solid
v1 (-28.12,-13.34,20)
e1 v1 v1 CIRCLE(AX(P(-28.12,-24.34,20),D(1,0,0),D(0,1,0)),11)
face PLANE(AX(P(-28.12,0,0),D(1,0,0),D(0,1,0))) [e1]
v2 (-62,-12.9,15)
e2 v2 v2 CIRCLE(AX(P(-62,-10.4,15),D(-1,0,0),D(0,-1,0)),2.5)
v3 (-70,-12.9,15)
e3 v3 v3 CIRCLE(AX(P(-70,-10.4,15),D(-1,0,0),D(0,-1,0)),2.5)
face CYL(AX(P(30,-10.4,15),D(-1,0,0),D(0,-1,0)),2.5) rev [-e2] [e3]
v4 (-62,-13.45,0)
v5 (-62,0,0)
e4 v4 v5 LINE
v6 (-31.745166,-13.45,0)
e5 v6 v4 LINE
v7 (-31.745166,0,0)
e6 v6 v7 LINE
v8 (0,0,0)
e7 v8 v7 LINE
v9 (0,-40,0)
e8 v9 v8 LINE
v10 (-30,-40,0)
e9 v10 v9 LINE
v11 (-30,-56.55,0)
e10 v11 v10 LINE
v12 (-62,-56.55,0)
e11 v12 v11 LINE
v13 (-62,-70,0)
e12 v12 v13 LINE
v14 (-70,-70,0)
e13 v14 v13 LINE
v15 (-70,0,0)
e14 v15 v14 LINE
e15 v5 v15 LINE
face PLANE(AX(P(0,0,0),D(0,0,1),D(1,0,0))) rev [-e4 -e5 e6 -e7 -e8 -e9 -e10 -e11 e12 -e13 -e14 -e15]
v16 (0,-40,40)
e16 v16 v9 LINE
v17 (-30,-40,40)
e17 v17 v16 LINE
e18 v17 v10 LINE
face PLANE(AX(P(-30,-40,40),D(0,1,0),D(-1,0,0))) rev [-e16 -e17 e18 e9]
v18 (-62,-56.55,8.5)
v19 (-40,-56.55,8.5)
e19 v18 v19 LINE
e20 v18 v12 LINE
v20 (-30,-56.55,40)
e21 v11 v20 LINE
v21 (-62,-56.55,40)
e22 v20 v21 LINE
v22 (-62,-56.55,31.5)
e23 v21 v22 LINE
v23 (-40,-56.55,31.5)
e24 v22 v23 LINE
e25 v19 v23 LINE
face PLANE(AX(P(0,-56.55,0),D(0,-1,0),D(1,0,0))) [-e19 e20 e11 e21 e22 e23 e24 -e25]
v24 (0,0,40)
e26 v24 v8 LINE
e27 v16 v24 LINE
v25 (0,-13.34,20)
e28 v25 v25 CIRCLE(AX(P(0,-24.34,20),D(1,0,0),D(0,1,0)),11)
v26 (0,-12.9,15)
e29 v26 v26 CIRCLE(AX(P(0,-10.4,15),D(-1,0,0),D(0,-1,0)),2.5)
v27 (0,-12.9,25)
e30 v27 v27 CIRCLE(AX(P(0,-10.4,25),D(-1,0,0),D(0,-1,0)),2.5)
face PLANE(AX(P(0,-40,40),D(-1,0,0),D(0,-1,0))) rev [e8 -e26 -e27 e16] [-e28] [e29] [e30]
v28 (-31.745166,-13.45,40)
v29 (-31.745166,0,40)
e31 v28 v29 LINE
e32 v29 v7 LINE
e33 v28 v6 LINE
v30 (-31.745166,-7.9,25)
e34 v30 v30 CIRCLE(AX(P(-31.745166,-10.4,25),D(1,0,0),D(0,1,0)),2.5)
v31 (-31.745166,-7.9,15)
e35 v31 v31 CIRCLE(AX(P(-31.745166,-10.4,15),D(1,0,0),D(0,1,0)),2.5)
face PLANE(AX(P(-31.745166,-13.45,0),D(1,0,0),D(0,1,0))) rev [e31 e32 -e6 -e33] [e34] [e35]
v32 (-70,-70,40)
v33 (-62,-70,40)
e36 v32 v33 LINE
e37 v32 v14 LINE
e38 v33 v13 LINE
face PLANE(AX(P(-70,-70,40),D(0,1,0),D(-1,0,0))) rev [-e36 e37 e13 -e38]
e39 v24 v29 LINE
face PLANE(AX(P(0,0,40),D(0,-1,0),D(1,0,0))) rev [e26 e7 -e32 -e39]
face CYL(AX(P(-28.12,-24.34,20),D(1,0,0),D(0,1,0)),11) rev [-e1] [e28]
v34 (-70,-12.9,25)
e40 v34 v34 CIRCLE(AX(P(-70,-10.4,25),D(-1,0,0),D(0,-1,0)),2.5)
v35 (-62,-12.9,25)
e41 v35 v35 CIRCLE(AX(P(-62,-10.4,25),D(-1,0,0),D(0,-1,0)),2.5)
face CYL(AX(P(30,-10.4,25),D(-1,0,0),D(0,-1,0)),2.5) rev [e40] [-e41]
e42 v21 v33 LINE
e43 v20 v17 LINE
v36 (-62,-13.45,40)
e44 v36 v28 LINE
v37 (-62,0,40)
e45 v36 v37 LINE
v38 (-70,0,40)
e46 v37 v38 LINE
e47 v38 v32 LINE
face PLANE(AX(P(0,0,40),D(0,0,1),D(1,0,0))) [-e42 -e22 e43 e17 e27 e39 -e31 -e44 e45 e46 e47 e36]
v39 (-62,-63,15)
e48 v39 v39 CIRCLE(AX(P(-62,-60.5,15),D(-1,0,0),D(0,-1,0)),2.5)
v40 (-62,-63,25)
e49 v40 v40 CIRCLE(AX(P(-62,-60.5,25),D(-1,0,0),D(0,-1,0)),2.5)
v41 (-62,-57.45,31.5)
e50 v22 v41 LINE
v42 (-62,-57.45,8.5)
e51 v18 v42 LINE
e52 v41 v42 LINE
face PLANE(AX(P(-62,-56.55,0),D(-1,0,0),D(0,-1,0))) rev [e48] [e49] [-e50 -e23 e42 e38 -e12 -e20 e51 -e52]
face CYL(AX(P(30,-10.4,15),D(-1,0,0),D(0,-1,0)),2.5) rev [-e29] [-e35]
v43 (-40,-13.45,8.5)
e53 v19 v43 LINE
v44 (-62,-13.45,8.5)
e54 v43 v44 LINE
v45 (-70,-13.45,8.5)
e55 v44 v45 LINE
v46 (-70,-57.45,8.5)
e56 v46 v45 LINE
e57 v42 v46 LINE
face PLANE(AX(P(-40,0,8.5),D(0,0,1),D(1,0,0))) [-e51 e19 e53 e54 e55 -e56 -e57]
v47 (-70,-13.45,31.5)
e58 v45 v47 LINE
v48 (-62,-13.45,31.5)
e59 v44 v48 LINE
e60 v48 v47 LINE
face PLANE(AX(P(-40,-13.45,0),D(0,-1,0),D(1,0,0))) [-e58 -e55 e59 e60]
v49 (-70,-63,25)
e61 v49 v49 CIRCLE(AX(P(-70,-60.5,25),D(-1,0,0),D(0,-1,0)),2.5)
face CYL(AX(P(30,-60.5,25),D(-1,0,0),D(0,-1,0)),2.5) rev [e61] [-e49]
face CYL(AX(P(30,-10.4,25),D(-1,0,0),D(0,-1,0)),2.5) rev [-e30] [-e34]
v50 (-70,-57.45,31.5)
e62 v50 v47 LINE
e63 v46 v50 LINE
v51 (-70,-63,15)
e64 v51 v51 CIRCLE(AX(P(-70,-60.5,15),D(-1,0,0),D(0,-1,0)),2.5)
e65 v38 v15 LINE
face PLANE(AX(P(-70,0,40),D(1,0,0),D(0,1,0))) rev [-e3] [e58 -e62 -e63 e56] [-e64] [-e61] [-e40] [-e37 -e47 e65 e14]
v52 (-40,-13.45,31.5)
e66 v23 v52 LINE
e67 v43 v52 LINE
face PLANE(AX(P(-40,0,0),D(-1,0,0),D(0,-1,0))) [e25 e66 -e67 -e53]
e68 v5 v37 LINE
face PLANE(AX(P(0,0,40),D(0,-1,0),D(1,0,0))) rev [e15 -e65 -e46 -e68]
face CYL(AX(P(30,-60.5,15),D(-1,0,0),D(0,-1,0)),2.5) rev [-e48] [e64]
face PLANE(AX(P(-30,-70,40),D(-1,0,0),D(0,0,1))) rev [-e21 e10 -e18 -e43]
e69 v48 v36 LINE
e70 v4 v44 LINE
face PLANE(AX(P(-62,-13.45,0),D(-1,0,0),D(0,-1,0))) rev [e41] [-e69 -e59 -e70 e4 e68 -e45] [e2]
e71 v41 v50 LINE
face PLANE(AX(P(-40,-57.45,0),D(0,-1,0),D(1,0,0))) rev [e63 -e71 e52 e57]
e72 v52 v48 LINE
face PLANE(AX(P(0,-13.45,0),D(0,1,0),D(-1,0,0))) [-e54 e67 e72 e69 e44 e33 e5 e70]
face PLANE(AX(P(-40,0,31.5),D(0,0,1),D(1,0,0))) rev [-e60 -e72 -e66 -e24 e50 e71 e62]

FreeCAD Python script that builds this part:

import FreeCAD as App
import Part
import Sketcher

V = App.Vector

doc = App.newDocument("Part")
params = doc.addObject("Spreadsheet::Sheet", "Params")
for row, (alias, value) in enumerate([
    ("sketch1_width", "70 mm"),
    ("sketch1_width2", "40 mm"),
    ("pad1_length", "40 mm"),
    ("sketch2_width", "44 mm"),
    ("sketch2_height", "23 mm"),
    ("pocket1_length", "30 mm"),
    ("sketch3_height", "40 mm"),
    ("pocket2_length", "13.45 mm"),
    ("sketch4_width", "32 mm"),
    ("sketch4_height", "40 mm"),
    ("pocket3_length", "13.45 mm"),
    ("sketch5_diameter", "5 mm"),
    ("pocket4_length", "100 mm"),
    ("sketch6_diameter", "22 mm"),
    ("pocket5_length", "28.12 mm"),
], start=1):
    params.set(f"A{row}", alias)
    params.set(f"B{row}", "=" + value)
    params.setAlias(f"B{row}", alias)

body = doc.addObject("PartDesign::Body", "Body")

# Sketch on XY plane
sketch1 = body.newObject("Sketcher::SketchObject", "Sketch")
sketch1.AttachmentSupport = (doc.getObject("XY_Plane"), [""])
sketch1.MapMode = "FlatFace"
sketch1.addGeometry([
    Part.LineSegment(V(0, 0, 0), V(-70, 0, 0)),  # 0
    Part.LineSegment(V(-70, 0, 0), V(-70, -70, 0)),  # 1
    Part.LineSegment(V(-70, -70, 0), V(-30, -70, 0)),  # 2
    Part.LineSegment(V(-30, -70, 0), V(-30, -40, 0)),  # 3
    Part.LineSegment(V(-30, -40, 0), V(0, -40, 0)),  # 4
    Part.LineSegment(V(0, -40, 0), V(0, 0, 0)),  # 5
], False)
sketch1.addConstraint([
    Sketcher.Constraint("Coincident", 0, 2, 1, 1),
    Sketcher.Constraint("Coincident", 1, 2, 2, 1),
    Sketcher.Constraint("Coincident", 2, 2, 3, 1),
    Sketcher.Constraint("Coincident", 3, 2, 4, 1),
    Sketcher.Constraint("Coincident", 4, 2, 5, 1),
    Sketcher.Constraint("Coincident", 5, 2, 0, 1),
    Sketcher.Constraint("Horizontal", 0),
    Sketcher.Constraint("Vertical", 1),
    Sketcher.Constraint("Horizontal", 2),
    Sketcher.Constraint("Vertical", 3),
    Sketcher.Constraint("Horizontal", 4),
    Sketcher.Constraint("Vertical", 5),
    Sketcher.Constraint("Coincident", 5, 2, -1, 1),
    Sketcher.Constraint("Equal", 0, 1),
    Sketcher.Constraint("Equal", 4, 3),
    Sketcher.Constraint("DistanceX", 0, 2, 0, 1, 70.0),
    Sketcher.Constraint("DistanceX", 2, 1, 2, 2, 40.0),
])
sketch1.setExpression("Constraints[15]", "Params.sketch1_width")
sketch1.setExpression("Constraints[16]", "Params.sketch1_width2")
pad1 = body.newObject("PartDesign::Pad", "Pad")
pad1.Profile = sketch1
pad1.setExpression("Length", "Params.pad1_length")

# Sketch on YZ plane
sketch2 = body.newObject("Sketcher::SketchObject", "Sketch001")
sketch2.AttachmentSupport = (doc.getObject("YZ_Plane"), [""])
sketch2.MapMode = "FlatFace"
sketch2.AttachmentOffset = App.Placement(V(0, 0, -70), App.Rotation())
sketch2.addGeometry([
    Part.LineSegment(V(-13, 8, 0), V(-57, 8, 0)),
    Part.LineSegment(V(-57, 8, 0), V(-57, 32, 0)),
    Part.LineSegment(V(-57, 32, 0), V(-13, 32, 0)),
    Part.LineSegment(V(-13, 32, 0), V(-13, 8, 0)),
], False)
sketch2.addConstraint([
    Sketcher.Constraint("Coincident", 0, 2, 1, 1),
    Sketcher.Constraint("Coincident", 1, 2, 2, 1),
    Sketcher.Constraint("Coincident", 2, 2, 3, 1),
    Sketcher.Constraint("Coincident", 3, 2, 0, 1),
    Sketcher.Constraint("Horizontal", 0),
    Sketcher.Constraint("Vertical", 1),
    Sketcher.Constraint("Horizontal", 2),
    Sketcher.Constraint("Vertical", 3),
    Sketcher.Constraint("DistanceX", 0, 2, 0, 1, 44.0),
    Sketcher.Constraint("DistanceY", 1, 1, 1, 2, 23.0),
    Sketcher.Constraint("DistanceY", -1, 1, 0, 2, 8.5),
    Sketcher.Constraint("DistanceX", 0, 2, -1, 1, 57.45),
])
sketch2.setExpression("Constraints[8]", "Params.sketch2_width")
sketch2.setExpression("Constraints[9]", "Params.sketch2_height")
pocket1 = body.newObject("PartDesign::Pocket", "Pocket")
pocket1.Profile = sketch2
pocket1.setExpression("Length", "Params.pocket1_length")
pocket1.Reversed = True

# Sketch on XZ plane
sketch3 = body.newObject("Sketcher::SketchObject", "Sketch002")
sketch3.AttachmentSupport = (doc.getObject("XZ_Plane"), [""])
sketch3.MapMode = "FlatFace"
sketch3.addGeometry([
    Part.LineSegment(V(-62, 0, 0), V(-62, 40, 0)),
    Part.LineSegment(V(-62, 40, 0), V(-32, 40, 0)),
    Part.LineSegment(V(-32, 40, 0), V(-32, 0, 0)),
    Part.LineSegment(V(-32, 0, 0), V(-62, 0, 0)),
], False)
sketch3.addConstraint([
    Sketcher.Constraint("Coincident", 0, 2, 1, 1),
    Sketcher.Constraint("Coincident", 1, 2, 2, 1),
    Sketcher.Constraint("Coincident", 2, 2, 3, 1),
    Sketcher.Constraint("Coincident", 3, 2, 0, 1),
    Sketcher.Constraint("Vertical", 0),
    Sketcher.Constraint("Horizontal", 1),
    Sketcher.Constraint("Vertical", 2),
    Sketcher.Constraint("Horizontal", 3),
    Sketcher.Constraint("PointOnObject", 2, 2, -1),
    Sketcher.Constraint("DistanceY", 0, 1, 0, 2, 40.0),
    Sketcher.Constraint("DistanceX", 0, 2, -1, 1, 62.0),
    Sketcher.Constraint("DistanceX", 1, 1, 1, 2, 30.254834),
])
sketch3.setExpression("Constraints[9]", "Params.sketch3_height")
pocket2 = body.newObject("PartDesign::Pocket", "Pocket001")
pocket2.Profile = sketch3
pocket2.setExpression("Length", "Params.pocket2_length")
pocket2.Reversed = True

# Sketch on XZ plane
sketch4 = body.newObject("Sketcher::SketchObject", "Sketch003")
sketch4.AttachmentSupport = (doc.getObject("XZ_Plane"), [""])
sketch4.MapMode = "FlatFace"
sketch4.AttachmentOffset = App.Placement(V(0, 0, 70), App.Rotation())
sketch4.addGeometry([
    Part.LineSegment(V(-62, 40, 0), V(-62, 0, 0)),
    Part.LineSegment(V(-62, 0, 0), V(-30, 0, 0)),
    Part.LineSegment(V(-30, 0, 0), V(-30, 40, 0)),
    Part.LineSegment(V(-30, 40, 0), V(-62, 40, 0)),
], False)
sketch4.addConstraint([
    Sketcher.Constraint("Coincident", 0, 2, 1, 1),
    Sketcher.Constraint("Coincident", 1, 2, 2, 1),
    Sketcher.Constraint("Coincident", 2, 2, 3, 1),
    Sketcher.Constraint("Coincident", 3, 2, 0, 1),
    Sketcher.Constraint("Vertical", 0),
    Sketcher.Constraint("Horizontal", 1),
    Sketcher.Constraint("Vertical", 2),
    Sketcher.Constraint("Horizontal", 3),
    Sketcher.Constraint("PointOnObject", 0, 2, -1),
    Sketcher.Constraint("DistanceX", 1, 1, 1, 2, 32.0),
    Sketcher.Constraint("DistanceY", 0, 2, 0, 1, 40.0),
    Sketcher.Constraint("DistanceX", 0, 2, -1, 1, 62.0),
])
sketch4.setExpression("Constraints[9]", "Params.sketch4_width")
sketch4.setExpression("Constraints[10]", "Params.sketch4_height")
pocket3 = body.newObject("PartDesign::Pocket", "Pocket002")
pocket3.Profile = sketch4
pocket3.setExpression("Length", "Params.pocket3_length")

# Sketch on YZ plane
sketch5 = body.newObject("Sketcher::SketchObject", "Sketch004")
sketch5.AttachmentSupport = (doc.getObject("YZ_Plane"), [""])
sketch5.MapMode = "FlatFace"
sketch5.AttachmentOffset = App.Placement(V(0, 0, -70), App.Rotation())
sketch5.addGeometry([
    Part.Circle(V(-10.4, 15, 0), V(0, 0, 1), 2.5),
    Part.Circle(V(-10.4, 25, 0), V(0, 0, 1), 2.5),
    Part.Circle(V(-60.5, 25, 0), V(0, 0, 1), 2.5),
    Part.Circle(V(-60.5, 15, 0), V(0, 0, 1), 2.5),
], False)
sketch5.addConstraint([
    Sketcher.Constraint("Equal", 0, 1),
    Sketcher.Constraint("Equal", 1, 2),
    Sketcher.Constraint("Equal", 2, 3),
    Sketcher.Constraint("Horizontal", 1, 3, 2, 3),
    Sketcher.Constraint("Horizontal", 0, 3, 3, 3),
    Sketcher.Constraint("Vertical", 0, 3, 1, 3),
    Sketcher.Constraint("Vertical", 2, 3, 3, 3),
    Sketcher.Constraint("Diameter", 0, 5.0),
    Sketcher.Constraint("DistanceY", -1, 1, 0, 3, 15.0),
    Sketcher.Constraint("DistanceY", -1, 1, 1, 3, 25.0),
    Sketcher.Constraint("DistanceX", 0, 3, -1, 1, 10.4),
    Sketcher.Constraint("DistanceX", 2, 3, -1, 1, 60.5),
])
sketch5.setExpression("Constraints[7]", "Params.sketch5_diameter")
pocket4 = body.newObject("PartDesign::Pocket", "Pocket003")
pocket4.Profile = sketch5
pocket4.setExpression("Length", "Params.pocket4_length")
pocket4.Reversed = True

# Sketch on YZ plane
sketch6 = body.newObject("Sketcher::SketchObject", "Sketch005")
sketch6.AttachmentSupport = (doc.getObject("YZ_Plane"), [""])
sketch6.MapMode = "FlatFace"
sketch6.addGeometry(Part.Circle(V(-24, 20, 0), V(0, 0, 1), 11), False)
sketch6.addConstraint([
    Sketcher.Constraint("Diameter", 0, 22.0),
    Sketcher.Constraint("DistanceY", -1, 1, 0, 3, 20.0),
    Sketcher.Constraint("DistanceX", 0, 3, -1, 1, 24.34),
])
sketch6.setExpression("Constraints[0]", "Params.sketch6_diameter")
pocket5 = body.newObject("PartDesign::Pocket", "Pocket004")
pocket5.Profile = sketch6
pocket5.setExpression("Length", "Params.pocket5_length")

doc.recompute()
